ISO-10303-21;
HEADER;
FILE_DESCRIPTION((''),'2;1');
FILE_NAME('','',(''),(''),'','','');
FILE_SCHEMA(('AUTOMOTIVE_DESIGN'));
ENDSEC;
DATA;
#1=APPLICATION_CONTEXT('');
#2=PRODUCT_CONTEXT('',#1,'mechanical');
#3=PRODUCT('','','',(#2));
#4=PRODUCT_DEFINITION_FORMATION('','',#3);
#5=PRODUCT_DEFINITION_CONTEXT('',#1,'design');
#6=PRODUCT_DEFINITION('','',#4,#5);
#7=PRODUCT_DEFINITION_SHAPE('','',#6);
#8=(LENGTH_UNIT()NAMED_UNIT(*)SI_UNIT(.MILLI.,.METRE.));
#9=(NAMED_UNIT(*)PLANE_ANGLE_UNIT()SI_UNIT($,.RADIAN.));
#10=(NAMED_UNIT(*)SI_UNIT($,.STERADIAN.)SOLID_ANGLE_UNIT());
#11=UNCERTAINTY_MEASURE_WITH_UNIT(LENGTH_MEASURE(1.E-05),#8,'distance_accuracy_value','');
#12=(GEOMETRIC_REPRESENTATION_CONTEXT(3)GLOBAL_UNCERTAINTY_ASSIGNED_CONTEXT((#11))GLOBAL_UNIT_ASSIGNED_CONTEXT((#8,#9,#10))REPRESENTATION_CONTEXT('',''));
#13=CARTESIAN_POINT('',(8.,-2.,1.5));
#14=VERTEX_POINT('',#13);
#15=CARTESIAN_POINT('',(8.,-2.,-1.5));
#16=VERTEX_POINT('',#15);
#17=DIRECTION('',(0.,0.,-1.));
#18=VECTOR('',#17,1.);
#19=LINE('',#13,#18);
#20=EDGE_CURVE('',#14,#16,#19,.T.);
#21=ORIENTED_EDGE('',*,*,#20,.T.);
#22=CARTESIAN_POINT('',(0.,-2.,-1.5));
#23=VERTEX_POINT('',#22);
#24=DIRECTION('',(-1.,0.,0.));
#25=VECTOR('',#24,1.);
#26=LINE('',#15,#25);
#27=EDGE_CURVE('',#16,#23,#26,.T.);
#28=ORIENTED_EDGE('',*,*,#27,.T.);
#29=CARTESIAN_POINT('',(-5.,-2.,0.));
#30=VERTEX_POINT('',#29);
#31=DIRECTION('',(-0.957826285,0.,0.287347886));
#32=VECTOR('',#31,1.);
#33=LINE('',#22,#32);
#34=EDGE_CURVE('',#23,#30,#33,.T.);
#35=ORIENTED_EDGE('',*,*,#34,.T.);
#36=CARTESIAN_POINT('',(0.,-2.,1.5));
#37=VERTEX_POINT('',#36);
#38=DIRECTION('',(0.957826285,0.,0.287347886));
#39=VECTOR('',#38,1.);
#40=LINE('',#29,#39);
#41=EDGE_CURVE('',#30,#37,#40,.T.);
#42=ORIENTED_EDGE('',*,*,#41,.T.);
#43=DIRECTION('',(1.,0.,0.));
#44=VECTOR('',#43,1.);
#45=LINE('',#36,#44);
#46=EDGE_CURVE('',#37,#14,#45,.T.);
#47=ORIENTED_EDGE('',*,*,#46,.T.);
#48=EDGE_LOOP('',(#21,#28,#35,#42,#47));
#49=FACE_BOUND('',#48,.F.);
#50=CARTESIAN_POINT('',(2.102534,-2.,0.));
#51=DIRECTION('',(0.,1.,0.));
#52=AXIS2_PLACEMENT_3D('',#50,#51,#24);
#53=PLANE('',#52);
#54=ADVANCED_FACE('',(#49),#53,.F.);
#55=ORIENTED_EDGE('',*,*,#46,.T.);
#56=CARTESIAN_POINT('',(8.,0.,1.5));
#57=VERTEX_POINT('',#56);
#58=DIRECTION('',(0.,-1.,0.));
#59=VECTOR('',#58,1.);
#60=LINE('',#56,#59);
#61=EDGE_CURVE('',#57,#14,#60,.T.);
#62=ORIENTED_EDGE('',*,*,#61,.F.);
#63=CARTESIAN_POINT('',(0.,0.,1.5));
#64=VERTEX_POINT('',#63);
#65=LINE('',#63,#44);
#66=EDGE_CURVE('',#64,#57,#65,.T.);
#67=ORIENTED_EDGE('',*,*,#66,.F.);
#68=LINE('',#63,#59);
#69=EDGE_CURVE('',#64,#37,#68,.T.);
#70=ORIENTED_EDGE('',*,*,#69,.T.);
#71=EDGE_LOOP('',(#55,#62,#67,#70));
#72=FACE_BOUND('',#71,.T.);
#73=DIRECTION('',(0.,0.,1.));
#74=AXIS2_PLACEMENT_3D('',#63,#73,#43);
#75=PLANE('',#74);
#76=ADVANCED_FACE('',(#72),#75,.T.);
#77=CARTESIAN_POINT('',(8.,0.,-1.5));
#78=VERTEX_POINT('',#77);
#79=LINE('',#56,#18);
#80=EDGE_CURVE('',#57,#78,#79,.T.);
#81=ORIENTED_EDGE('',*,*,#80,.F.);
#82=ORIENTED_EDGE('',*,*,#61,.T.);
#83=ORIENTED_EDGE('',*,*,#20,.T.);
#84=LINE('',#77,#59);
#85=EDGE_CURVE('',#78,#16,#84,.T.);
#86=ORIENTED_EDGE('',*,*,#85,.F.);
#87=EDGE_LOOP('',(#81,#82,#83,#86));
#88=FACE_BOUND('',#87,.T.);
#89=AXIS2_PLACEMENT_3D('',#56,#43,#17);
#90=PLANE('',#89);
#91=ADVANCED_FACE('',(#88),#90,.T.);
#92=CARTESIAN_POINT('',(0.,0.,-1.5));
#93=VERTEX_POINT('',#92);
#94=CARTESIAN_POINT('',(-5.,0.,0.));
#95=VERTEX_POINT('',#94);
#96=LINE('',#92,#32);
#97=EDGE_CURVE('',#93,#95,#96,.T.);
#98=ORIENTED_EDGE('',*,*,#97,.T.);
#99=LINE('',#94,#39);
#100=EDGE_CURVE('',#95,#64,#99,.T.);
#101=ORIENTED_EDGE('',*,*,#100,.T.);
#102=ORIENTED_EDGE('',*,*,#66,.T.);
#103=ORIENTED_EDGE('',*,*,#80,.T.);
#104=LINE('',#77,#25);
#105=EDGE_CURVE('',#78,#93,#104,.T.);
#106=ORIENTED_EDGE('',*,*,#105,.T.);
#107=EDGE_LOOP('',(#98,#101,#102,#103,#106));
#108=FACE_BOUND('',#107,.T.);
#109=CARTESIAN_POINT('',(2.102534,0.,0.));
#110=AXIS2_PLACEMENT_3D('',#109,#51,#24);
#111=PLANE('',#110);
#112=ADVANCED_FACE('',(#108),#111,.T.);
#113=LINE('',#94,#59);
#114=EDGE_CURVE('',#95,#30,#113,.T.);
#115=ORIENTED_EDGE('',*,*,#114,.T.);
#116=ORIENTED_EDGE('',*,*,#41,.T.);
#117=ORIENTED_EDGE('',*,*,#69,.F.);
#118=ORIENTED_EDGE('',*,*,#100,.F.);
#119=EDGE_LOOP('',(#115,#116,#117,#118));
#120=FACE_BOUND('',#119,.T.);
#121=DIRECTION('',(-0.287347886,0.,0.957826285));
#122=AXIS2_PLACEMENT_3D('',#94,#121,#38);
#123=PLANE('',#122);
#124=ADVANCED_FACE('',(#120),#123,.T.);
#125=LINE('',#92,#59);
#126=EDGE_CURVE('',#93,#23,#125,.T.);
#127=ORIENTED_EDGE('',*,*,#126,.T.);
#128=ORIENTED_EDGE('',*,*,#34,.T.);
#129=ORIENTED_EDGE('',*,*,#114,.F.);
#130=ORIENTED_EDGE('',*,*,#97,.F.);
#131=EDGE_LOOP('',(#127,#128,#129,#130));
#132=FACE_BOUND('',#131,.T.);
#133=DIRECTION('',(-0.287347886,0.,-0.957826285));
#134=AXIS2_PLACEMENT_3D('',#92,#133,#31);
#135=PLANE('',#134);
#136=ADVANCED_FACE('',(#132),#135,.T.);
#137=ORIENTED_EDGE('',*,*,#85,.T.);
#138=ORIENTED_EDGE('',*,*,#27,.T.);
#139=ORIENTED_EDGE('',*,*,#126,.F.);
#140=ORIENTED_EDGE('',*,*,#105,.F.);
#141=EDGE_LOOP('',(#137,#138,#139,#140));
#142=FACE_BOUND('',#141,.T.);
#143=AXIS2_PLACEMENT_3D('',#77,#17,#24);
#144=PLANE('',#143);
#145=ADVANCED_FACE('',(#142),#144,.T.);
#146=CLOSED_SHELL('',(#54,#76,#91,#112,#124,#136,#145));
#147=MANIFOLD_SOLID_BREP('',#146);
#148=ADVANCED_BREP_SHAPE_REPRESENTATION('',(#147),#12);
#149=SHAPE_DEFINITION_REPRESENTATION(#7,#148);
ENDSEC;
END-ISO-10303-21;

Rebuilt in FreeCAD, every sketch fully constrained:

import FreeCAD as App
import Part
import Sketcher
from FreeCAD import Vector

doc = App.newDocument("Part")
body = doc.addObject("PartDesign::Body", "Body")

# Sketch on XZ plane
sketch1 = body.newObject("Sketcher::SketchObject", "Sketch")
sketch1.AttachmentSupport = (doc.getObject("XZ_Plane"), [""])
sketch1.MapMode = "FlatFace"
sketch1.addGeometry([
    Part.LineSegment(Vector(8, 1.5, 0), Vector(0, 1.5, 0)),  # 0
    Part.LineSegment(Vector(0, 1.5, 0), Vector(-5, 0, 0)),  # 1
    Part.LineSegment(Vector(-5, 0, 0), Vector(0, -1.5, 0)),  # 2
    Part.LineSegment(Vector(0, -1.5, 0), Vector(8, -1.5, 0)),  # 3
    Part.LineSegment(Vector(8, -1.5, 0), Vector(8, 1.5, 0)),  # 4
], False)
sketch1.addConstraint([
    Sketcher.Constraint("Coincident", 0, 2, 1, 1),
    Sketcher.Constraint("Coincident", 1, 2, 2, 1),
    Sketcher.Constraint("Coincident", 2, 2, 3, 1),
    Sketcher.Constraint("Coincident", 3, 2, 4, 1),
    Sketcher.Constraint("Coincident", 4, 2, 0, 1),
    Sketcher.Constraint("Horizontal", 0),
    Sketcher.Constraint("Horizontal", 3),
    Sketcher.Constraint("Vertical", 4),
    Sketcher.Constraint("Symmetric", 0, 2, 2, 2, -1, 1),
    Sketcher.Constraint("PointOnObject", 0, 2, -2),
    Sketcher.Constraint("PointOnObject", 1, 2, -1),
    Sketcher.Constraint("DistanceX", 0, 2, 0, 1, 8.0),
    Sketcher.Constraint("DistanceY", 4, 1, 4, 2, 3.0),
    Sketcher.Constraint("DistanceX", 1, 2, -1, 1, 5.0),
])
pad1 = body.newObject("PartDesign::Pad", "Pad")
pad1.Profile = sketch1
pad1.Length = 2

doc.recompute()
